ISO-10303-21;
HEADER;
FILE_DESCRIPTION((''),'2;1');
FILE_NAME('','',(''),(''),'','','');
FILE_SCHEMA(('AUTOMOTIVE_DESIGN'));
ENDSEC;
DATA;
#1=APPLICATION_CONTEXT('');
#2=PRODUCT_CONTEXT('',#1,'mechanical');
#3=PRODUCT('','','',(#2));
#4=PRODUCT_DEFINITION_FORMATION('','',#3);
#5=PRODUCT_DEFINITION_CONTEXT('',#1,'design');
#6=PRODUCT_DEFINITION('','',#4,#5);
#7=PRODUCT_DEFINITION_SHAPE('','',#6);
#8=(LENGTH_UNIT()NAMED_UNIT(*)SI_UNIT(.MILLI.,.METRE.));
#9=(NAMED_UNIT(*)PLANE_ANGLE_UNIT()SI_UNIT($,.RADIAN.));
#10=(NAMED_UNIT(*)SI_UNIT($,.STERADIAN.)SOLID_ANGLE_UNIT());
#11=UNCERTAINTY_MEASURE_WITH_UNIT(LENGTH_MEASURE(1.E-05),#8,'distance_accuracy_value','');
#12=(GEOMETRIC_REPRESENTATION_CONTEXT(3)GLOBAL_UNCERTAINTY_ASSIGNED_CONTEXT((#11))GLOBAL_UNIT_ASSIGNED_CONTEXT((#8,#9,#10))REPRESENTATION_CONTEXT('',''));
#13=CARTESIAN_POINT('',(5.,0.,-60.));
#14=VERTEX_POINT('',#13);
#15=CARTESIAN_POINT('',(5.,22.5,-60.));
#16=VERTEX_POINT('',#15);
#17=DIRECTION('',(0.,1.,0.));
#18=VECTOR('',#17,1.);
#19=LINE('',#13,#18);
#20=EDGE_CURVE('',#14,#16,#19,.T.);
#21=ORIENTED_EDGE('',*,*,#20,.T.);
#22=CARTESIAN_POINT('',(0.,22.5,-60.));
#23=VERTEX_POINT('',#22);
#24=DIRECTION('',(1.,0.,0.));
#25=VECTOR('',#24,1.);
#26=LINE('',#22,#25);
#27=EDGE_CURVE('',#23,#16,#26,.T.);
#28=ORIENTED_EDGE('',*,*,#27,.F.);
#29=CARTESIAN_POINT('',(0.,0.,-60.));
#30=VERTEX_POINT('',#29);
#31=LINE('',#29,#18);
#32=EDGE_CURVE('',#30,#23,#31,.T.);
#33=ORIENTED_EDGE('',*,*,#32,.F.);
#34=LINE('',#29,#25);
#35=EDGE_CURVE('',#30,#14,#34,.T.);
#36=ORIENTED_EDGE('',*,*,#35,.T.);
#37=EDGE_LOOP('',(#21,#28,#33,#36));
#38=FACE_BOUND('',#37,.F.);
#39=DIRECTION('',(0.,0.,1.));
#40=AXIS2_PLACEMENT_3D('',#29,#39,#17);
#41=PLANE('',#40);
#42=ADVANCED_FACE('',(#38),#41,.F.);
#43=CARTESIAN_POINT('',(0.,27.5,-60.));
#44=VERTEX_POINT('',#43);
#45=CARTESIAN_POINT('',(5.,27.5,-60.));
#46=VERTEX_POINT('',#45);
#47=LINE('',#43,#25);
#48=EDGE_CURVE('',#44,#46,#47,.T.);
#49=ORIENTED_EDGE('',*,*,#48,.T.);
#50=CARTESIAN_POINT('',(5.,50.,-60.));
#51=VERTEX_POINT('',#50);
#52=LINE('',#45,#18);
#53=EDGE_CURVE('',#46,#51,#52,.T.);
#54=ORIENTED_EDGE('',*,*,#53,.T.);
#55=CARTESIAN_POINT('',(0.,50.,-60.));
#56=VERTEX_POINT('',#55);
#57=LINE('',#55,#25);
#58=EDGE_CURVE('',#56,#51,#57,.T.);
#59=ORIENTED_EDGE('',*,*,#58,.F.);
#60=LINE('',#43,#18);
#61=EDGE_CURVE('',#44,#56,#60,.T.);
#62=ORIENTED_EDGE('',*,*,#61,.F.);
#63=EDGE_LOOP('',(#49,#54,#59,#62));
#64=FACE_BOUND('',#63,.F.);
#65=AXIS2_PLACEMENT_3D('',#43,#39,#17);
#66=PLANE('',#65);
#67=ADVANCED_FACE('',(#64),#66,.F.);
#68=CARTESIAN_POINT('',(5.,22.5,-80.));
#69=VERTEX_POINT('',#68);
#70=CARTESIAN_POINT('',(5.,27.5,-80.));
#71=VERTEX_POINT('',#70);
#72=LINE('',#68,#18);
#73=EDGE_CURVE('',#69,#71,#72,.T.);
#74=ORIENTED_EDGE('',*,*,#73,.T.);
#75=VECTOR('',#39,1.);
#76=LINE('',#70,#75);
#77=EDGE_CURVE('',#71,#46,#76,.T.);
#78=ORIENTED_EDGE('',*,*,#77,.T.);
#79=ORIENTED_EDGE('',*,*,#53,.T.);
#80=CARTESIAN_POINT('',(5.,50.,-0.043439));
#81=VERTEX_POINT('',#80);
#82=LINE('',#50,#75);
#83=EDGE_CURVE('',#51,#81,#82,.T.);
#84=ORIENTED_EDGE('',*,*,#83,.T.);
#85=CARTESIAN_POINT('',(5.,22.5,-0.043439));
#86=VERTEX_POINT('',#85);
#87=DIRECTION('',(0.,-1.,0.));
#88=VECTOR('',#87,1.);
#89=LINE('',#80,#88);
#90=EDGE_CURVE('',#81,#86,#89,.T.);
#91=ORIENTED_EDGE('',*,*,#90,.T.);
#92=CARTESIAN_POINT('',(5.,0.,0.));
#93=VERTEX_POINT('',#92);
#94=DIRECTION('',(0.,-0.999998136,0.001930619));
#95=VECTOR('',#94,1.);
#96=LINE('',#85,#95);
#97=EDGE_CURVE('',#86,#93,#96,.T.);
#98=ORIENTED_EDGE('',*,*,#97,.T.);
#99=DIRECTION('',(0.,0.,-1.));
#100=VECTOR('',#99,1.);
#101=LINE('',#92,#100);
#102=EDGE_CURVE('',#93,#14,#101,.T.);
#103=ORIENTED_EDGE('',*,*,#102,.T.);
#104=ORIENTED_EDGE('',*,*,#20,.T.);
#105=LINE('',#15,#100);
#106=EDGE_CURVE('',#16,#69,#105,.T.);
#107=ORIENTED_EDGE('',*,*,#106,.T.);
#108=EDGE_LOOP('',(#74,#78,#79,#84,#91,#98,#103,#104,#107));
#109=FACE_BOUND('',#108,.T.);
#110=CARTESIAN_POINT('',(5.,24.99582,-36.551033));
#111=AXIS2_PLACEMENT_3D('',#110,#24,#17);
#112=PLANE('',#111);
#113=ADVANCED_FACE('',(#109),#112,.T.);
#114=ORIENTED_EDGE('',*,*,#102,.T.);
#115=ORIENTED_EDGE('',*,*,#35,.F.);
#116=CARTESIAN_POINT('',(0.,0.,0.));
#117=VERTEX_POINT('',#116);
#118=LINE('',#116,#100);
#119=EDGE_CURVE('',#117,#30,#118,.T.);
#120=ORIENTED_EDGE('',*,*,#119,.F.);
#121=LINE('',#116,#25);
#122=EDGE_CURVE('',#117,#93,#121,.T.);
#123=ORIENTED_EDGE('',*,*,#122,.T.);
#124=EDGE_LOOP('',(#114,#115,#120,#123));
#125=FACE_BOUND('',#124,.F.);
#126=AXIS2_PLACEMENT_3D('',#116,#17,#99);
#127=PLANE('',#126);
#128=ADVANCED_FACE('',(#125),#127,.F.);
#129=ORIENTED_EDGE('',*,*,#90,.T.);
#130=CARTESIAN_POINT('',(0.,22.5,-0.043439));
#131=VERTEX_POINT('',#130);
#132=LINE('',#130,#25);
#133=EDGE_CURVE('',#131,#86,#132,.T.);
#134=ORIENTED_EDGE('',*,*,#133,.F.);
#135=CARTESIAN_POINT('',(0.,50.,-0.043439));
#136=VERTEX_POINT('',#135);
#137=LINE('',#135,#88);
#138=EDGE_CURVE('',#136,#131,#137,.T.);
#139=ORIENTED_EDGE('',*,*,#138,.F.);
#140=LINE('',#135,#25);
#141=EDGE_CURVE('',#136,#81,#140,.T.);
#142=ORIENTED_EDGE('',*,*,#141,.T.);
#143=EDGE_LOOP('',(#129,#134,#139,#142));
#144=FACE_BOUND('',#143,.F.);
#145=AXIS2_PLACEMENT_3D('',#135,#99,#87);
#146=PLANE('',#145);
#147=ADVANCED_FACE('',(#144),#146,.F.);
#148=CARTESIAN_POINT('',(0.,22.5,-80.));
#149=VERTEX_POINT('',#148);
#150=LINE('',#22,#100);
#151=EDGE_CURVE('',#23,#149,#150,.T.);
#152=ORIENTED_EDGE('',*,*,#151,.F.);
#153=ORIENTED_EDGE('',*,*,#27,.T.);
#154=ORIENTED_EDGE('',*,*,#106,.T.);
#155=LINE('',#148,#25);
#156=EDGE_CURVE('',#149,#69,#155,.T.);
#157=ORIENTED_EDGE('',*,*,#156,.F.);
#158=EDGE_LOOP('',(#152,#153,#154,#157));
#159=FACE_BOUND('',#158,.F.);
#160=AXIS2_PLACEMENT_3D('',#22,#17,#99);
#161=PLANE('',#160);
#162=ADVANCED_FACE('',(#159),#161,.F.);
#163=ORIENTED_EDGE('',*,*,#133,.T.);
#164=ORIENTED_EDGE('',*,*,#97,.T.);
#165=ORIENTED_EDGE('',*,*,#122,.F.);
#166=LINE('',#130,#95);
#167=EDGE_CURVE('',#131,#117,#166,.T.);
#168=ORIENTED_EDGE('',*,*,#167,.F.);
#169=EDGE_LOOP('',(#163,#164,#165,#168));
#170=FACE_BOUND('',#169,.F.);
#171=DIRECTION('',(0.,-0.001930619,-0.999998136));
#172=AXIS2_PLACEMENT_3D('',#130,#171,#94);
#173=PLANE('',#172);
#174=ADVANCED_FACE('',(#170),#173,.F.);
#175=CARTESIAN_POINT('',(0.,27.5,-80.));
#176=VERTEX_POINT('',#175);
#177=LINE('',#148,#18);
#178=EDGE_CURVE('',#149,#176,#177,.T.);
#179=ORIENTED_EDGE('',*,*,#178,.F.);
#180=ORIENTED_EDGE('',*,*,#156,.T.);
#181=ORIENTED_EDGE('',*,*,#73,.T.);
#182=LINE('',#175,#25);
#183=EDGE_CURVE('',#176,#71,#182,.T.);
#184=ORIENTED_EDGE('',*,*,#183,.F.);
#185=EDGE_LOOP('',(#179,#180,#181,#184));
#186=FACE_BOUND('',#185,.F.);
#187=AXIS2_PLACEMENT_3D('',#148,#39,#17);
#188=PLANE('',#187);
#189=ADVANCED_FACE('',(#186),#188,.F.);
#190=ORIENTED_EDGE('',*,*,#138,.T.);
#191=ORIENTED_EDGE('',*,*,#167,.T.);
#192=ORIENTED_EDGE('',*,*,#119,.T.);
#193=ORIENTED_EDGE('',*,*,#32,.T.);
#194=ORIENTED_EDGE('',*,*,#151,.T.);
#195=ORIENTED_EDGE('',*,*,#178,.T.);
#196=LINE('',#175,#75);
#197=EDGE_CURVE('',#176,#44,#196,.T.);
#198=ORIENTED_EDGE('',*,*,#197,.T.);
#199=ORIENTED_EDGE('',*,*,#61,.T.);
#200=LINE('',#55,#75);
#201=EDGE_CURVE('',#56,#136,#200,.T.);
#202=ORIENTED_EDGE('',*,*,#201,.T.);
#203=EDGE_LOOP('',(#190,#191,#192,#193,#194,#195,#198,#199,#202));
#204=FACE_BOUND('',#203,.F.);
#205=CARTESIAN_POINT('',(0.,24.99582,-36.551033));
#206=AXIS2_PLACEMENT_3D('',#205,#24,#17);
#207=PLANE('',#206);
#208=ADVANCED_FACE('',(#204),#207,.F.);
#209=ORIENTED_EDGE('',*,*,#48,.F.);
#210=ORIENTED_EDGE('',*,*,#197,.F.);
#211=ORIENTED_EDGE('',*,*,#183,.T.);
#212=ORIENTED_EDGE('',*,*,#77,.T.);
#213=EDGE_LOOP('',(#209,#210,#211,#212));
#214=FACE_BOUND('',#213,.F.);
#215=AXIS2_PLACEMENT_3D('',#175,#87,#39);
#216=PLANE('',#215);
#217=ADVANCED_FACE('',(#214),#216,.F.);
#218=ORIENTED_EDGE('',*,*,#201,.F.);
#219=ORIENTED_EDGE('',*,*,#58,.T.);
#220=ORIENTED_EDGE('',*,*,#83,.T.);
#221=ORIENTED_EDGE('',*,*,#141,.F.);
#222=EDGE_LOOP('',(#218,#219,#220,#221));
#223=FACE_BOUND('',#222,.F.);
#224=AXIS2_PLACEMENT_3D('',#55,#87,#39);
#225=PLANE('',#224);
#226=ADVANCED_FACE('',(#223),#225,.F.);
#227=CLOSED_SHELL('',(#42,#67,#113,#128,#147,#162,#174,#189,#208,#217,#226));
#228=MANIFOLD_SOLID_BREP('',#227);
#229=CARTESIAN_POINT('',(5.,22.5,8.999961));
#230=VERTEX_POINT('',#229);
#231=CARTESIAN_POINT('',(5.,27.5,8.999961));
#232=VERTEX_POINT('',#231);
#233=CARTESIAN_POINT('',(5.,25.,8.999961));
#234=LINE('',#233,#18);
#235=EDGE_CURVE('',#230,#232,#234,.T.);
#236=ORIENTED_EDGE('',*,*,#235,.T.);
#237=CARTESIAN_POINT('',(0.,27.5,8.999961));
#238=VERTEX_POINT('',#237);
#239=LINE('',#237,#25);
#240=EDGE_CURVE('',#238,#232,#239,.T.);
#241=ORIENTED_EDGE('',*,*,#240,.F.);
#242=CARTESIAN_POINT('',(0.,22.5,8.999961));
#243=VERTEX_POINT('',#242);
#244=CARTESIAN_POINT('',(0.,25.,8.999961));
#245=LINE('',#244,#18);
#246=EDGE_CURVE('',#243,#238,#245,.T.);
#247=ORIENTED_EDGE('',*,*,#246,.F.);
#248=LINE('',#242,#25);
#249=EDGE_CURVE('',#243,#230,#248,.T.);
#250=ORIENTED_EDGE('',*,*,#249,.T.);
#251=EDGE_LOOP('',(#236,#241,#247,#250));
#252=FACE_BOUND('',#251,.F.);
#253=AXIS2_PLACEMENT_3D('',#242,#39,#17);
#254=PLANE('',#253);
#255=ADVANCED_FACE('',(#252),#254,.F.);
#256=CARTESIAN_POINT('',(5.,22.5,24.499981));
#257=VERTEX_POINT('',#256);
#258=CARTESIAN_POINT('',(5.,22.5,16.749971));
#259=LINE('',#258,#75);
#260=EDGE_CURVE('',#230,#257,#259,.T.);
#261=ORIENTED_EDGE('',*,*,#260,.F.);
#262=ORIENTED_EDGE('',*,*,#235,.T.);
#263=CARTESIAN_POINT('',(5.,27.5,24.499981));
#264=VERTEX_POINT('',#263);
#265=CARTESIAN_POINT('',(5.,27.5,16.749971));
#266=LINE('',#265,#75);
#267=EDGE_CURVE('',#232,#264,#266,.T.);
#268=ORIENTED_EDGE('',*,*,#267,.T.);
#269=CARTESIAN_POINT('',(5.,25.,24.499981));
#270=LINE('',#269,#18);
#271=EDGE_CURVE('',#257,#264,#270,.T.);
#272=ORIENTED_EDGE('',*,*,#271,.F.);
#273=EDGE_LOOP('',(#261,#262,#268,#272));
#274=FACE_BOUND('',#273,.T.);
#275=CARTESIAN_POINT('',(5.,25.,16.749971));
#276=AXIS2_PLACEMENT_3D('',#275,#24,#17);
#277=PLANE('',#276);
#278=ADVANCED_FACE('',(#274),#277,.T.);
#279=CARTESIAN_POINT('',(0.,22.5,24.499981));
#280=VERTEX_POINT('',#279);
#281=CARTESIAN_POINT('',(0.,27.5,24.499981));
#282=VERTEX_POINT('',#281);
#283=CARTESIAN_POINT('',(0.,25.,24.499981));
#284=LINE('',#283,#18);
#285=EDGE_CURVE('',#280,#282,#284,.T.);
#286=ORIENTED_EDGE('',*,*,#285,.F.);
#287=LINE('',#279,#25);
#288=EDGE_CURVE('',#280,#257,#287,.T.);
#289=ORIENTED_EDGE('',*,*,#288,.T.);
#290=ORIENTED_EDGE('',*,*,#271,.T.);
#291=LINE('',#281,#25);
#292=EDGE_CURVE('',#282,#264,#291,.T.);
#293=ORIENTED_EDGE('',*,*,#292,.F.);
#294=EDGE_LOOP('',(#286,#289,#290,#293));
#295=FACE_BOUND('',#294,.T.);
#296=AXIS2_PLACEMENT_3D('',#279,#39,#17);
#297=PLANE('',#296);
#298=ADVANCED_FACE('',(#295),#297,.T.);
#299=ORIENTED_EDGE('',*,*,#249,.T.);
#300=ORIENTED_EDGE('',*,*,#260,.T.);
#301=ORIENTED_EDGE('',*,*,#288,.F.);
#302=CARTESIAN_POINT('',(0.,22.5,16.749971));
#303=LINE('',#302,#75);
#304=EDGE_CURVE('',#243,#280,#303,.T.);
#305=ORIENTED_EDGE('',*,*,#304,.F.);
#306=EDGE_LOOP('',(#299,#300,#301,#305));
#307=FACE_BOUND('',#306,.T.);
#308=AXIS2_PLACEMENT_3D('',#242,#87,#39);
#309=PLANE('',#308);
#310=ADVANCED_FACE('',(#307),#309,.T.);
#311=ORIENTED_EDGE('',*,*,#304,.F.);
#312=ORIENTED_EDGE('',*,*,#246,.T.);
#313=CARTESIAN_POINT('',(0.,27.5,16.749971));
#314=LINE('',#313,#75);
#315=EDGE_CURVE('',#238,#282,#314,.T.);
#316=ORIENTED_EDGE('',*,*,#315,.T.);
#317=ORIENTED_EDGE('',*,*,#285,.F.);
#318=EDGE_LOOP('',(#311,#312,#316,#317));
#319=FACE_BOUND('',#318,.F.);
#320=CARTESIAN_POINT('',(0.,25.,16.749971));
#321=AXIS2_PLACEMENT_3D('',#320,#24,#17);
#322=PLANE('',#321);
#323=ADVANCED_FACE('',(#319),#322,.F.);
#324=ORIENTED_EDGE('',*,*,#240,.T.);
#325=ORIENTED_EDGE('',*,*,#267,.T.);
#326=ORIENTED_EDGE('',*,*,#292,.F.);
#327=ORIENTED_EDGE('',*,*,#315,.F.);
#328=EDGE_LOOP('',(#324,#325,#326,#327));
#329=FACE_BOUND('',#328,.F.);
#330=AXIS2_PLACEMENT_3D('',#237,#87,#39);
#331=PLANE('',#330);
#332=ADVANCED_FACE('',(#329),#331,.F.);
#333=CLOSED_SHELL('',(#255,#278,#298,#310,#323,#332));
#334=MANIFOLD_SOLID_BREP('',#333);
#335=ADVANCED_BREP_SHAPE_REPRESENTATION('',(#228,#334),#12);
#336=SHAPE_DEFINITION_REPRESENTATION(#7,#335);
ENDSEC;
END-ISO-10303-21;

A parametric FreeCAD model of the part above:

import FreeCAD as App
import Part
import Sketcher

V = App.Vector
Q = App.Units.Quantity


def add_polygon(sketch, points):
    """Adds a closed chain of lines whose ends are joined by coincident constraints."""
    first, n = sketch.GeometryCount, len(points)
    for a, b in zip(points, points[1:] + points[:1]):
        sketch.addGeometry(Part.LineSegment(App.Vector(*a, 0), App.Vector(*b, 0)), False)
    for i in range(n):
        sketch.addConstraint(Sketcher.Constraint("Coincident", first + i, 2, first + (i + 1) % n, 1))

doc = App.newDocument("Part")
params = doc.addObject("Spreadsheet::Sheet", "Params")
for row, (alias, value) in enumerate([
    ("sketch1_width", "5 mm"),
    ("sketch1_height", "60 mm"),
    ("sketch1_height2", "20 mm"),
    ("sketch1_width2", "22.5 mm"),
    ("pad1_length", "5 mm"),
], start=1):
    params.set(f"A{row}", alias)
    params.set(f"B{row}", "=" + value)
    params.setAlias(f"B{row}", alias)

body = doc.addObject("PartDesign::Body", "Body")
body.AllowCompound = True

# Sketch on YZ plane
sketch1 = doc.addObject("Sketcher::SketchObject", "Sketch")
body.addObject(sketch1)
sketch1.AttachmentSupport = (doc.YZ_Plane, [""])
sketch1.MapMode = "FlatFace"
add_polygon(sketch1, [(22, 0), (0, 0), (0, -60), (22, -60), (22, -80), (28, -80), (28, -60), (50, -60), (50, 0)])  # lines 0-8
add_polygon(sketch1, [(22, 24), (22, 9), (28, 9), (28, 24)])  # lines 9-12
sketch1.addConstraint([
    Sketcher.Constraint("Vertical", 1),
    Sketcher.Constraint("Horizontal", 2),
    Sketcher.Constraint("Vertical", 3),
    Sketcher.Constraint("Horizontal", 4),
    Sketcher.Constraint("Vertical", 5),
    Sketcher.Constraint("Horizontal", 6),
    Sketcher.Constraint("Vertical", 7),
    Sketcher.Constraint("Horizontal", 8),
    Sketcher.Constraint("Vertical", 9),
    Sketcher.Constraint("Horizontal", 10),
    Sketcher.Constraint("Vertical", 11),
    Sketcher.Constraint("Horizontal", 12),
    Sketcher.Constraint("Coincident", 0, 2, -1, 1),
    Sketcher.Constraint("Horizontal", 2, 2, 5, 2),
    Sketcher.Constraint("Vertical", 3, 2, 8, 2),
    Sketcher.Constraint("Vertical", 8, 2, 9, 2),
    Sketcher.Constraint("Vertical", 5, 2, 10, 2),
    Sketcher.Constraint("Equal", 2, 6),
    Sketcher.Constraint("DistanceX", 4, 1, 4, 2, Q("5 mm")),
    Sketcher.Constraint("DistanceY", 1, 2, 1, 1, Q("60 mm")),
    Sketcher.Constraint("DistanceY", 3, 2, 3, 1, Q("20 mm")),
    Sketcher.Constraint("DistanceX", 2, 1, 2, 2, Q("22.5 mm")),
    Sketcher.Constraint("DistanceY", 7, 1, 7, 2, Q("59.956561 mm")),
    Sketcher.Constraint("DistanceY", 9, 2, 9, 1, Q("15.50002 mm")),
    Sketcher.Constraint("DistanceY", 8, 2, 9, 2, Q("9.0434 mm")),
])
sketch1.setExpression("Constraints[31]", "Params.sketch1_width")
sketch1.setExpression("Constraints[32]", "Params.sketch1_height")
sketch1.setExpression("Constraints[33]", "Params.sketch1_height2")
sketch1.setExpression("Constraints[34]", "Params.sketch1_width2")
pad1 = doc.addObject("PartDesign::Pad", "Pad")
body.addObject(pad1)
pad1.Profile = sketch1
pad1.setExpression("Length", "Params.pad1_length")

doc.recompute()
